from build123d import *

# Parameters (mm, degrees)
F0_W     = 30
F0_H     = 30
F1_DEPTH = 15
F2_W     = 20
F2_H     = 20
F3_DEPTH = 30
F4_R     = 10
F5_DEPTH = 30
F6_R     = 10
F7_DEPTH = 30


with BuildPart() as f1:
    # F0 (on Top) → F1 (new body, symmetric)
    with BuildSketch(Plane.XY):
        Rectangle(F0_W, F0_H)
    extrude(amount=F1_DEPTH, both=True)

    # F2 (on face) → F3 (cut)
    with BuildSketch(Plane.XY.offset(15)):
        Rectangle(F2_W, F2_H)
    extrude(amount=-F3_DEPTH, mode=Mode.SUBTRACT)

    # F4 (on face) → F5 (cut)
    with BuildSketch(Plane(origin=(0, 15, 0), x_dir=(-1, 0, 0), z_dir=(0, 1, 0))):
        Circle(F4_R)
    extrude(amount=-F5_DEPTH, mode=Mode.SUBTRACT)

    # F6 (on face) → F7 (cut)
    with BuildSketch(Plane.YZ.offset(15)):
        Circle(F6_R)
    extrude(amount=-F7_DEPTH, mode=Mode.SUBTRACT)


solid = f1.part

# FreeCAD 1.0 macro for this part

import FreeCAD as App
import Part
import Sketcher
from FreeCAD import Vector
Q = App.Units.Quantity


def add_polygon(sketch, points):
    """Adds a closed chain of lines whose ends are joined by coincident constraints."""
    first, n = sketch.GeometryCount, len(points)
    for a, b in zip(points, points[1:] + points[:1]):
        sketch.addGeometry(Part.LineSegment(App.Vector(*a, 0), App.Vector(*b, 0)), False)
    for i in range(n):
        sketch.addConstraint(Sketcher.Constraint("Coincident", first + i, 2, first + (i + 1) % n, 1))

doc = App.newDocument("Part")
params = doc.addObject("Spreadsheet::Sheet", "Params")
for row, (alias, value) in enumerate([
    ("sketch1_width", "30 mm"),
    ("pad1_length", "30 mm"),
    ("sketch2_width", "20 mm"),
    ("pocket1_length", "30 mm"),
    ("sketch3_diameter", "20 mm"),
    ("pocket2_length", "30 mm"),
    ("sketch4_diameter", "20 mm"),
    ("pocket3_length", "30 mm"),
], start=1):
    params.set(f"A{row}", alias)
    params.set(f"B{row}", "=" + value)
    params.setAlias(f"B{row}", alias)

body = doc.addObject("PartDesign::Body", "Body")

# Sketch on XY plane
sketch1 = body.newObject("Sketcher::SketchObject", "Sketch")
sketch1.AttachmentSupport = (doc.getObject("XY_Plane"), [""])
sketch1.MapMode = "FlatFace"
add_polygon(sketch1, [(-15, 15), (-15, -15), (15, -15), (15, 15)])  # lines 0-3
sketch1.addConstraint([
    Sketcher.Constraint("Vertical", 0),
    Sketcher.Constraint("Horizontal", 1),
    Sketcher.Constraint("Vertical", 2),
    Sketcher.Constraint("Horizontal", 3),
    Sketcher.Constraint("Symmetric", 0, 2, 2, 2, -1, 1),
    Sketcher.Constraint("Equal", 3, 0),
    Sketcher.Constraint("DistanceX", 1, 1, 1, 2, Q("30 mm")),
])
sketch1.setExpression("Constraints[10]", "Params.sketch1_width")
pad1 = body.newObject("PartDesign::Pad", "Pad")
pad1.Profile = sketch1
pad1.setExpression("Length", "Params.pad1_length")
pad1.Midplane = True

# Sketch on XY plane
sketch2 = body.newObject("Sketcher::SketchObject", "Sketch001")
sketch2.AttachmentSupport = (doc.getObject("XY_Plane"), [""])
sketch2.MapMode = "FlatFace"
sketch2.AttachmentOffset = App.Placement(Vector(0, 0, 15), App.Rotation())
add_polygon(sketch2, [(-10, 10), (-10, -10), (10, -10), (10, 10)])  # lines 0-3
sketch2.addConstraint([
    Sketcher.Constraint("Vertical", 0),
    Sketcher.Constraint("Horizontal", 1),
    Sketcher.Constraint("Vertical", 2),
    Sketcher.Constraint("Horizontal", 3),
    Sketcher.Constraint("Symmetric", 0, 2, 2, 2, -1, 1),
    Sketcher.Constraint("Equal", 3, 0),
    Sketcher.Constraint("DistanceX", 1, 1, 1, 2, Q("20 mm")),
])
sketch2.setExpression("Constraints[10]", "Params.sketch2_width")
pocket1 = body.newObject("PartDesign::Pocket", "Pocket")
pocket1.Profile = sketch2
pocket1.setExpression("Length", "Params.pocket1_length")

# Sketch on XZ plane
sketch3 = body.newObject("Sketcher::SketchObject", "Sketch002")
sketch3.AttachmentSupport = (doc.getObject("XZ_Plane"), [""])
sketch3.MapMode = "FlatFace"
sketch3.AttachmentOffset = App.Placement(Vector(0, 0, -15), App.Rotation())
sketch3.addGeometry(Part.Circle(Vector(0, 0, 0), Vector(0, 0, 1), 10), False)
sketch3.addConstraint([
    Sketcher.Constraint("Coincident", 0, 3, -1, 1),
    Sketcher.Constraint("Diameter", 0, Q("20 mm")),
])
sketch3.setExpression("Constraints[1]", "Params.sketch3_diameter")
pocket2 = body.newObject("PartDesign::Pocket", "Pocket001")
pocket2.Profile = sketch3
pocket2.setExpression("Length", "Params.pocket2_length")
pocket2.Reversed = True

# Sketch on YZ plane
sketch4 = body.newObject("Sketcher::SketchObject", "Sketch003")
sketch4.AttachmentSupport = (doc.getObject("YZ_Plane"), [""])
sketch4.MapMode = "FlatFace"
sketch4.AttachmentOffset = App.Placement(Vector(0, 0, 15), App.Rotation())
sketch4.addGeometry(Part.Circle(Vector(0, 0, 0), Vector(0, 0, 1), 10), False)
sketch4.addConstraint([
    Sketcher.Constraint("Coincident", 0, 3, -1, 1),
    Sketcher.Constraint("Diameter", 0, Q("20 mm")),
])
sketch4.setExpression("Constraints[1]", "Params.sketch4_diameter")
pocket3 = body.newObject("PartDesign::Pocket", "Pocket002")
pocket3.Profile = sketch4
pocket3.setExpression("Length", "Params.pocket3_length")

doc.recompute()
